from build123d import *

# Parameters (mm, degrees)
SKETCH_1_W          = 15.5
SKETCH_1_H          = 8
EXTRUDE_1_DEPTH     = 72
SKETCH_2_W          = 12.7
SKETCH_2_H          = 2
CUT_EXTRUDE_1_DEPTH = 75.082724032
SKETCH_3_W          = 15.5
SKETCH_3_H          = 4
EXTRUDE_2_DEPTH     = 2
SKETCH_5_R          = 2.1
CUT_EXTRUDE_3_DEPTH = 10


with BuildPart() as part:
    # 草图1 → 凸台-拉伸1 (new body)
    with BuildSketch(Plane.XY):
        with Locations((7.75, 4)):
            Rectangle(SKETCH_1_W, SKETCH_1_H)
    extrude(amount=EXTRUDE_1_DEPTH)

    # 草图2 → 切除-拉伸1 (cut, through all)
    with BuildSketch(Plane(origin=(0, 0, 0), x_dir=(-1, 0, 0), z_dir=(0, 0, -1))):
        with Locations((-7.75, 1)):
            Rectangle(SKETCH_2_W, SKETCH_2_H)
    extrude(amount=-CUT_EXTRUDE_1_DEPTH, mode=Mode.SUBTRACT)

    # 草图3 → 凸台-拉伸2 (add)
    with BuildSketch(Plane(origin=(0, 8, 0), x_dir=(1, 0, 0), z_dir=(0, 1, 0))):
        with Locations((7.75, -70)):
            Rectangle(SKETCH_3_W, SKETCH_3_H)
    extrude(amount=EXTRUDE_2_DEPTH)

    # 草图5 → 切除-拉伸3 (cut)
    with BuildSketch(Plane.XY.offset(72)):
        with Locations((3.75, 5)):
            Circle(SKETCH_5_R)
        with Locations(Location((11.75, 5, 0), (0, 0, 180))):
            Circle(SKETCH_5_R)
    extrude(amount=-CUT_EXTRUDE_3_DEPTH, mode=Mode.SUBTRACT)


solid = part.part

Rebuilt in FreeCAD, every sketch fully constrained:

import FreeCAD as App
import Part
import Sketcher

V = App.Vector


def add_polygon(sketch, points):
    """Adds a closed chain of lines whose ends are joined by coincident constraints."""
    first, n = sketch.GeometryCount, len(points)
    for a, b in zip(points, points[1:] + points[:1]):
        sketch.addGeometry(Part.LineSegment(App.Vector(*a, 0), App.Vector(*b, 0)), False)
    for i in range(n):
        sketch.addConstraint(Sketcher.Constraint("Coincident", first + i, 2, first + (i + 1) % n, 1))

doc = App.newDocument("Part")
body = doc.addObject("PartDesign::Body", "Body")

# Sketch on XY plane
sketch1 = doc.addObject("Sketcher::SketchObject", "Sketch")
body.addObject(sketch1)
sketch1.AttachmentSupport = (doc.XY_Plane, [""])
sketch1.MapMode = "FlatFace"
add_polygon(sketch1, [(0, 8), (0, 0), (15.5, 0), (15.5, 8)])  # lines 0-3
sketch1.addConstraint(Sketcher.Constraint("Vertical", 0))
sketch1.addConstraint(Sketcher.Constraint("Horizontal", 1))
sketch1.addConstraint(Sketcher.Constraint("Vertical", 2))
sketch1.addConstraint(Sketcher.Constraint("Horizontal", 3))
sketch1.addConstraint(Sketcher.Constraint("Coincident", 0, 2, -1, 1))
sketch1.addConstraint(Sketcher.Constraint("DistanceY", 0, 2, 0, 1, 8.0))
sketch1.addConstraint(Sketcher.Constraint("DistanceX", 1, 1, 1, 2, 15.5))
pad1 = doc.addObject("PartDesign::Pad", "Pad")
body.addObject(pad1)
pad1.Profile = sketch1
pad1.Length = 72

# Sketch on XY plane
sketch2 = doc.addObject("Sketcher::SketchObject", "Sketch001")
body.addObject(sketch2)
sketch2.AttachmentSupport = (doc.XY_Plane, [""])
sketch2.MapMode = "FlatFace"
add_polygon(sketch2, [(14.1, 2), (14.1, 0), (1.4, 0), (1.4, 2)])  # lines 0-3
sketch2.addConstraint(Sketcher.Constraint("Vertical", 0))
sketch2.addConstraint(Sketcher.Constraint("Horizontal", 1))
sketch2.addConstraint(Sketcher.Constraint("Vertical", 2))
sketch2.addConstraint(Sketcher.Constraint("Horizontal", 3))
sketch2.addConstraint(Sketcher.Constraint("PointOnObject", 0, 2, -1))
sketch2.addConstraint(Sketcher.Constraint("DistanceY", 0, 2, 0, 1, 2.0))
sketch2.addConstraint(Sketcher.Constraint("DistanceX", 1, 2, 1, 1, 12.7))
sketch2.addConstraint(Sketcher.Constraint("DistanceX", -1, 1, 0, 2, 14.1))
pocket1 = doc.addObject("PartDesign::Pocket", "Pocket")
body.addObject(pocket1)
pocket1.Profile = sketch2
pocket1.Type = "ThroughAll"
pocket1.Reversed = True

# Sketch on XZ plane
sketch3 = doc.addObject("Sketcher::SketchObject", "Sketch002")
body.addObject(sketch3)
sketch3.AttachmentSupport = (doc.XZ_Plane, [""])
sketch3.MapMode = "FlatFace"
sketch3.AttachmentOffset = App.Placement(V(0, 0, -8), App.Rotation())
add_polygon(sketch3, [(0, 68), (0, 72), (15.5, 72), (15.5, 68)])  # lines 0-3
sketch3.addConstraint(Sketcher.Constraint("Vertical", 0))
sketch3.addConstraint(Sketcher.Constraint("Horizontal", 1))
sketch3.addConstraint(Sketcher.Constraint("Vertical", 2))
sketch3.addConstraint(Sketcher.Constraint("Horizontal", 3))
sketch3.addConstraint(Sketcher.Constraint("PointOnObject", 0, 2, -2))
sketch3.addConstraint(Sketcher.Constraint("DistanceY", 0, 1, 0, 2, 4.0))
sketch3.addConstraint(Sketcher.Constraint("DistanceX", 1, 1, 1, 2, 15.5))
sketch3.addConstraint(Sketcher.Constraint("DistanceY", -1, 1, 0, 2, 72.0))
pad2 = doc.addObject("PartDesign::Pad", "Pad001")
body.addObject(pad2)
pad2.Profile = sketch3
pad2.Length = 2
pad2.Reversed = True

# Sketch on XY plane
sketch4 = doc.addObject("Sketcher::SketchObject", "Sketch003")
body.addObject(sketch4)
sketch4.AttachmentSupport = (doc.XY_Plane, [""])
sketch4.MapMode = "FlatFace"
sketch4.AttachmentOffset = App.Placement(V(0, 0, 72), App.Rotation())
sketch4.addGeometry(Part.Circle(V(3.75, 5, 0), V(0, 0, 1), 2.1), False)
sketch4.addGeometry(Part.Circle(V(11.75, 5, 0), V(0, 0, 1), 2.1), False)
sketch4.addConstraint(Sketcher.Constraint("Equal", 0, 1))
sketch4.addConstraint(Sketcher.Constraint("Horizontal", 0, 3, 1, 3))
sketch4.addConstraint(Sketcher.Constraint("Diameter", 0, 4.2))
sketch4.addConstraint(Sketcher.Constraint("DistanceY", -1, 1, 0, 3, 5.0))
sketch4.addConstraint(Sketcher.Constraint("DistanceX", 0, 3, 1, 3, 8.0))
sketch4.addConstraint(Sketcher.Constraint("DistanceX", -1, 1, 0, 3, 3.75))
pocket2 = doc.addObject("PartDesign::Pocket", "Pocket001")
body.addObject(pocket2)
pocket2.Profile = sketch4
pocket2.Length = 10

doc.recompute()
